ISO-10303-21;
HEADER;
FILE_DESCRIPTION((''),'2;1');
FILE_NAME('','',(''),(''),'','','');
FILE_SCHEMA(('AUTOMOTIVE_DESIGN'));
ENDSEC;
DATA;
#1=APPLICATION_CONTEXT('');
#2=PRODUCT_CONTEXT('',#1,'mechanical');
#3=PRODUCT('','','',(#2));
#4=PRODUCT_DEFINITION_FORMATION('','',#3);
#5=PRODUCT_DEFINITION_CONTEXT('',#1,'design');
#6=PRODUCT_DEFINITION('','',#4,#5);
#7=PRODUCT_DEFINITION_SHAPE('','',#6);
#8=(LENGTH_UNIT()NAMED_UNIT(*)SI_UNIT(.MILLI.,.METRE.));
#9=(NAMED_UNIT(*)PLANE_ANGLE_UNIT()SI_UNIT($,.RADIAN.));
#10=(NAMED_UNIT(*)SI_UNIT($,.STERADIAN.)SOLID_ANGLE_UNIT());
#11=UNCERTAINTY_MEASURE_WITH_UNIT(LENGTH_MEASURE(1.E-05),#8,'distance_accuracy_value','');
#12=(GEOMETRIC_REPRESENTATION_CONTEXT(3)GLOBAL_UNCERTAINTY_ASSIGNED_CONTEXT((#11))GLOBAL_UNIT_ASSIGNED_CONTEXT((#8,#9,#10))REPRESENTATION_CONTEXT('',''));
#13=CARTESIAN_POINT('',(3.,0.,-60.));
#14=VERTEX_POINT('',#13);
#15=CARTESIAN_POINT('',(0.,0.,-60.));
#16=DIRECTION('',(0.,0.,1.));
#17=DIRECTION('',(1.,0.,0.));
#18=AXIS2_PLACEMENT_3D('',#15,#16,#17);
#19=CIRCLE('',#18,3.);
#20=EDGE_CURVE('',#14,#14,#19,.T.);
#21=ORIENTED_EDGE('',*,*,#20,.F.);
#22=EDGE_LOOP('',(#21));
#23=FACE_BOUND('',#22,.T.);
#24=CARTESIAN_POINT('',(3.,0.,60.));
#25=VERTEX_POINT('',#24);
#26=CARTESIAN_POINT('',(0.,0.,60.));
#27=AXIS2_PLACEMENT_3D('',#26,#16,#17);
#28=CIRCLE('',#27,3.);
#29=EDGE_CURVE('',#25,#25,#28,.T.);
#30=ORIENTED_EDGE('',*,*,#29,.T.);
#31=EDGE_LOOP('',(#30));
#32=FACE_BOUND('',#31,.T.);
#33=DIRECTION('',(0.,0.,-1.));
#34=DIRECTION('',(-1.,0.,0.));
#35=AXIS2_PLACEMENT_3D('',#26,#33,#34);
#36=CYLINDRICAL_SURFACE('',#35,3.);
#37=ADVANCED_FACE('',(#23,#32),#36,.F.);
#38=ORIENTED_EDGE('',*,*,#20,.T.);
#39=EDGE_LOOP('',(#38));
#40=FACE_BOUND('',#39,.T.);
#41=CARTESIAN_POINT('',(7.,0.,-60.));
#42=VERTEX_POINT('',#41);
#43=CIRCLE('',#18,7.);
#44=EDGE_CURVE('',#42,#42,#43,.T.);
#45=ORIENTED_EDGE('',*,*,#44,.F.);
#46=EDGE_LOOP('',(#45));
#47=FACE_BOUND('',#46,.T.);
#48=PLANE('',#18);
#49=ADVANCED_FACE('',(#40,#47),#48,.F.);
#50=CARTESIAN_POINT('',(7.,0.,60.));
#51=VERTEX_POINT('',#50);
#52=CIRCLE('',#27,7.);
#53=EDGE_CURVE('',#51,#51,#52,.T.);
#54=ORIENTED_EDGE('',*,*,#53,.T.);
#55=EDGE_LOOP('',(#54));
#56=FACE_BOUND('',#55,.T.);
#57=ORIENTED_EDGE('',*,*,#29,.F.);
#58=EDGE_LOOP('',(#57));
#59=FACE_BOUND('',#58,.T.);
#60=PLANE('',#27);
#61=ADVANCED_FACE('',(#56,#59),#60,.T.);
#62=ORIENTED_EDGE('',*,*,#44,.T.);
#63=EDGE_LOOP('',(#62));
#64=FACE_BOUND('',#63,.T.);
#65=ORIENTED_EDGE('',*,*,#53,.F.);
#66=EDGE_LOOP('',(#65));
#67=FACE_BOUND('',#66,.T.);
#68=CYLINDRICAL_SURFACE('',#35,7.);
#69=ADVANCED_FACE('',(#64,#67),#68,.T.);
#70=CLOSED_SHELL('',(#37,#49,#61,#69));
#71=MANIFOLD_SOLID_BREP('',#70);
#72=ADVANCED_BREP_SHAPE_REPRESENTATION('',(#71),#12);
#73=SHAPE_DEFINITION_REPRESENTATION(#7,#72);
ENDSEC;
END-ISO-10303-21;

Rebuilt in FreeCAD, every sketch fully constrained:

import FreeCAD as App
import Part
import Sketcher

V = App.Vector

doc = App.newDocument("Part")
body = doc.addObject("PartDesign::Body", "Body")

# Sketch on XY plane
sketch1 = body.newObject("Sketcher::SketchObject", "Sketch")
sketch1.AttachmentSupport = (doc.getObject("XY_Plane"), [""])
sketch1.MapMode = "FlatFace"
sketch1.addGeometry([
    Part.Circle(V(0, 0, 0), V(0, 0, 1), 7),
    Part.Circle(V(0, 0, 0), V(0, 0, 1), 3),
], False)
sketch1.addConstraint([
    Sketcher.Constraint("Coincident", 0, 3, -1, 1),
    Sketcher.Constraint("Coincident", 1, 3, -1, 1),
    Sketcher.Constraint("Diameter", 0, 14.0),
    Sketcher.Constraint("Diameter", 1, 6.0),
])
pad1 = body.newObject("PartDesign::Pad", "Pad")
pad1.Profile = sketch1
pad1.Length = 120
pad1.Midplane = True

doc.recompute()
